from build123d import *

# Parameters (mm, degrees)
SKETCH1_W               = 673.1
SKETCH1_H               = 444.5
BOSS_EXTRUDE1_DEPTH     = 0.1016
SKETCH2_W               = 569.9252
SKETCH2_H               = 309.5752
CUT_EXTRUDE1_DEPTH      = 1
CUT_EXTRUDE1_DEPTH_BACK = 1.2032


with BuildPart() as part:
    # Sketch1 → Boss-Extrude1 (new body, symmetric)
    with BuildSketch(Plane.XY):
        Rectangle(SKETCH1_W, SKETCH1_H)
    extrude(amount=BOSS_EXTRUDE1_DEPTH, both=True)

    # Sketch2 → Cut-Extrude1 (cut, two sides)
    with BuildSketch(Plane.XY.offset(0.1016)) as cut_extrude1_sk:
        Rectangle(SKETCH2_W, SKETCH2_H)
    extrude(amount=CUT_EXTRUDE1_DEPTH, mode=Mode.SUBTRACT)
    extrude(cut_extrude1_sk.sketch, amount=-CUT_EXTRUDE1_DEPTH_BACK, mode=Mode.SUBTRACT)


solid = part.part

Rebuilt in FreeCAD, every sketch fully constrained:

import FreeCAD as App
import Part
import Sketcher

V = App.Vector
Q = App.Units.Quantity


def add_polygon(sketch, points):
    """Adds a closed chain of lines whose ends are joined by coincident constraints."""
    first, n = sketch.GeometryCount, len(points)
    for a, b in zip(points, points[1:] + points[:1]):
        sketch.addGeometry(Part.LineSegment(App.Vector(*a, 0), App.Vector(*b, 0)), False)
    for i in range(n):
        sketch.addConstraint(Sketcher.Constraint("Coincident", first + i, 2, first + (i + 1) % n, 1))

doc = App.newDocument("Part")
body = doc.addObject("PartDesign::Body", "Body")

# Sketch on XY plane
sketch1 = doc.addObject("Sketcher::SketchObject", "Sketch")
body.addObject(sketch1)
sketch1.AttachmentSupport = (doc.XY_Plane, [""])
sketch1.MapMode = "FlatFace"
add_polygon(sketch1, [(-336.55, 222.25), (-336.55, -222.25), (336.55, -222.25), (336.55, 222.25)])  # lines 0-3
sketch1.addConstraint([
    Sketcher.Constraint("Vertical", 0),
    Sketcher.Constraint("Horizontal", 1),
    Sketcher.Constraint("Vertical", 2),
    Sketcher.Constraint("Horizontal", 3),
    Sketcher.Constraint("Symmetric", 0, 2, 2, 2, -1, 1),
    Sketcher.Constraint("DistanceX", 1, 1, 1, 2, Q("26.5 in")),
    Sketcher.Constraint("DistanceY", 0, 2, 0, 1, Q("17.5 in")),
])
pad1 = doc.addObject("PartDesign::Pad", "Pad")
body.addObject(pad1)
pad1.Profile = sketch1
pad1.Length = Q("0.008 in")
pad1.Midplane = True

# Sketch on XY plane
sketch2 = doc.addObject("Sketcher::SketchObject", "Sketch001")
body.addObject(sketch2)
sketch2.AttachmentSupport = (doc.XY_Plane, [""])
sketch2.MapMode = "FlatFace"
sketch2.AttachmentOffset = App.Placement(V(0, 0, 0.004 * 25.4), App.Rotation())
add_polygon(sketch2, [(-284.9626, 154.7876), (-284.9626, -154.7876), (284.9626, -154.7876), (284.9626, 154.7876)])  # lines 0-3
sketch2.addConstraint([
    Sketcher.Constraint("Vertical", 0),
    Sketcher.Constraint("Horizontal", 1),
    Sketcher.Constraint("Vertical", 2),
    Sketcher.Constraint("Horizontal", 3),
    Sketcher.Constraint("Symmetric", 0, 2, 2, 2, -1, 1),
    Sketcher.Constraint("DistanceX", 1, 1, 1, 2, Q("22.438 in")),
    Sketcher.Constraint("DistanceY", 0, 2, 0, 1, Q("12.188 in")),
])
pocket1 = doc.addObject("PartDesign::Pocket", "Pocket")
body.addObject(pocket1)
pocket1.Profile = sketch2
pocket1.Type = "ThroughAll"
pocket1.Midplane = True

doc.recompute()
